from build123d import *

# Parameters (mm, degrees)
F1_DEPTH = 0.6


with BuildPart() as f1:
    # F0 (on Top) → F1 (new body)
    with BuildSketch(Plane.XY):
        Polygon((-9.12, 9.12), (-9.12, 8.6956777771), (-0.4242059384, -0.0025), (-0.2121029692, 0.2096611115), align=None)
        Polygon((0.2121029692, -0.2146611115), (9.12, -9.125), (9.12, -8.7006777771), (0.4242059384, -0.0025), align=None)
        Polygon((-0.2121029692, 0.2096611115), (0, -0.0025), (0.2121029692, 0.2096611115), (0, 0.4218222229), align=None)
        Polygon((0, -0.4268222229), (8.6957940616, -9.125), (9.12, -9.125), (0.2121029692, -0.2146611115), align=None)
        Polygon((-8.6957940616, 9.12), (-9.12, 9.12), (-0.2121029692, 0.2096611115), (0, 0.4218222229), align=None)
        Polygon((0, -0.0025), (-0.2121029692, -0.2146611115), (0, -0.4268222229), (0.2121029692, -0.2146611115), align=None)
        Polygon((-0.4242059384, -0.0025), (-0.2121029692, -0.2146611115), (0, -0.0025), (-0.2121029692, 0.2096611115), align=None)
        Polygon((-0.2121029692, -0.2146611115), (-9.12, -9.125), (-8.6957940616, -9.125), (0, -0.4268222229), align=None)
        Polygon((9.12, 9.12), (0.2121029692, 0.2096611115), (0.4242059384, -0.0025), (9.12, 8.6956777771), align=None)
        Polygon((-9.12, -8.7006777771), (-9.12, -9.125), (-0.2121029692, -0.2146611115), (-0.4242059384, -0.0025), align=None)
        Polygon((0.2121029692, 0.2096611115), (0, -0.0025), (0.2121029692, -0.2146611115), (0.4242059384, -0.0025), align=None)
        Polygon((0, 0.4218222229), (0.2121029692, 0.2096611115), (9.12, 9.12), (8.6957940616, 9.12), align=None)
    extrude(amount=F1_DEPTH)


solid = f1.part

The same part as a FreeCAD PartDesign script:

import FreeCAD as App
import Part
import Sketcher
from FreeCAD import Vector


def add_polygon(sketch, points):
    """Adds a closed chain of lines whose ends are joined by coincident constraints."""
    first, n = sketch.GeometryCount, len(points)
    for a, b in zip(points, points[1:] + points[:1]):
        sketch.addGeometry(Part.LineSegment(App.Vector(*a, 0), App.Vector(*b, 0)), False)
    for i in range(n):
        sketch.addConstraint(Sketcher.Constraint("Coincident", first + i, 2, first + (i + 1) % n, 1))

doc = App.newDocument("Part")
params = doc.addObject("Spreadsheet::Sheet", "Params")
for row, (alias, value) in enumerate([
    ("pad1_length", "0.6 mm"),
], start=1):
    params.set(f"A{row}", alias)
    params.set(f"B{row}", "=" + value)
    params.setAlias(f"B{row}", alias)

body = doc.addObject("PartDesign::Body", "Body")

# Sketch on XY plane
sketch1 = doc.addObject("Sketcher::SketchObject", "Sketch")
body.addObject(sketch1)
sketch1.AttachmentSupport = (doc.XY_Plane, [""])
sketch1.MapMode = "FlatFace"
add_polygon(sketch1, [(-9.12, 9.12), (-9.12, 8.695678), (-0.424206, -0.0025), (-9.12, -8.700678), (-9.12, -9.125), (-8.695794, -9.125), (0, -0.426822), (8.695794, -9.125), (9.12, -9.125), (9.12, -8.700678), (0.424206, -0.0025), (9.12, 8.695678), (9.12, 9.12), (8.695794, 9.12), (0, 0.421822), (-8.695794, 9.12)])  # lines 0-15
sketch1.addConstraint([
    Sketcher.Constraint("Vertical", 0),
    Sketcher.Constraint("Vertical", 3),
    Sketcher.Constraint("Horizontal", 4),
    Sketcher.Constraint("Horizontal", 7),
    Sketcher.Constraint("Vertical", 8),
    Sketcher.Constraint("Vertical", 11),
    Sketcher.Constraint("Horizontal", 12),
    Sketcher.Constraint("Horizontal", 15),
    Sketcher.Constraint("Symmetric", 4, 2, 6, 2, -2),
    Sketcher.Constraint("Symmetric", 2, 2, 8, 2, -2),
    Sketcher.Constraint("Symmetric", 1, 2, 9, 2, -2),
    Sketcher.Constraint("Symmetric", 0, 2, 10, 2, -2),
    Sketcher.Constraint("Symmetric", 12, 2, 14, 2, -2),
    Sketcher.Constraint("PointOnObject", 5, 2, -2),
    Sketcher.Constraint("PointOnObject", 13, 2, -2),
    Sketcher.Constraint("Parallel", 2, 5),
    Sketcher.Constraint("Parallel", 1, 6),
    Sketcher.Constraint("Parallel", 10, 13),
    Sketcher.Constraint("Vertical", 0, 2, 2, 2),
    Sketcher.Constraint("Vertical", 6, 2, 12, 2),
    Sketcher.Constraint("Equal", 0, 3),
    Sketcher.Constraint("Equal", 2, 5),
    Sketcher.Constraint("DistanceX", 0, 2, -1, 1, 9.12),
    Sketcher.Constraint("DistanceY", -1, 1, 11, 2, 9.12),
    Sketcher.Constraint("DistanceY", 3, 2, -1, 1, 9.125),
    Sketcher.Constraint("DistanceX", 4, 1, 4, 2, 0.424206),
    Sketcher.Constraint("DistanceY", 0, 2, 0, 1, 0.424322),
])
pad1 = doc.addObject("PartDesign::Pad", "Pad")
body.addObject(pad1)
pad1.Profile = sketch1
pad1.setExpression("Length", "Params.pad1_length")

doc.recompute()
